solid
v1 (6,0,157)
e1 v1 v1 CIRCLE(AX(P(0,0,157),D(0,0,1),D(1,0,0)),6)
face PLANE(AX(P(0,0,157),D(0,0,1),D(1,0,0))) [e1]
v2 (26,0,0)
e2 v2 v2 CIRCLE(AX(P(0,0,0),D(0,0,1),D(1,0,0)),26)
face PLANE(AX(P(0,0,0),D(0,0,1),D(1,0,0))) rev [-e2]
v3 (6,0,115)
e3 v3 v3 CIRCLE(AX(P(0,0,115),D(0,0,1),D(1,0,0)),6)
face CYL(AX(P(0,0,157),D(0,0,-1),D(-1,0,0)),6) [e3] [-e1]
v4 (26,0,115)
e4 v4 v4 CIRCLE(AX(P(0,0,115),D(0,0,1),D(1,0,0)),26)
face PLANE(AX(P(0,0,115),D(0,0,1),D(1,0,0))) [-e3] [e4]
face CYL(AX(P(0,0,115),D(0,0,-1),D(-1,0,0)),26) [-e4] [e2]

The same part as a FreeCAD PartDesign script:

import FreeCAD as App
import Part
import Sketcher
from FreeCAD import Vector
Q = App.Units.Quantity

doc = App.newDocument("Part")
body = doc.addObject("PartDesign::Body", "Body")

sketch1 = doc.addObject("Sketcher::SketchObject", "Sketch")
body.addObject(sketch1)
sketch1.AttachmentSupport = (doc.XY_Plane, [""])
sketch1.MapMode = "FlatFace"
sketch1.addGeometry(Part.Circle(Vector(0, 0, 0), Vector(0, 0, 1), 26), False)
sketch1.addConstraint([
    Sketcher.Constraint("Coincident", 0, 3, -1, 1),
    Sketcher.Constraint("Diameter", 0, Q("52 mm")),
])
pad1 = doc.addObject("PartDesign::Pad", "Pad")
body.addObject(pad1)
pad1.Profile = sketch1
pad1.Length = 115

sketch2 = doc.addObject("Sketcher::SketchObject", "Sketch001")
body.addObject(sketch2)
sketch2.AttachmentSupport = (doc.XY_Plane, [""])
sketch2.MapMode = "FlatFace"
sketch2.AttachmentOffset = App.Placement(Vector(0, 0, 115), App.Rotation())
sketch2.addGeometry(Part.Circle(Vector(0, 0, 0), Vector(0, 0, 1), 6), False)
sketch2.addConstraint([
    Sketcher.Constraint("Coincident", 0, 3, -1, 1),
    Sketcher.Constraint("Diameter", 0, Q("12 mm")),
])
pad2 = doc.addObject("PartDesign::Pad", "Pad001")
body.addObject(pad2)
pad2.Profile = sketch2
pad2.Length = 42

doc.recompute()
